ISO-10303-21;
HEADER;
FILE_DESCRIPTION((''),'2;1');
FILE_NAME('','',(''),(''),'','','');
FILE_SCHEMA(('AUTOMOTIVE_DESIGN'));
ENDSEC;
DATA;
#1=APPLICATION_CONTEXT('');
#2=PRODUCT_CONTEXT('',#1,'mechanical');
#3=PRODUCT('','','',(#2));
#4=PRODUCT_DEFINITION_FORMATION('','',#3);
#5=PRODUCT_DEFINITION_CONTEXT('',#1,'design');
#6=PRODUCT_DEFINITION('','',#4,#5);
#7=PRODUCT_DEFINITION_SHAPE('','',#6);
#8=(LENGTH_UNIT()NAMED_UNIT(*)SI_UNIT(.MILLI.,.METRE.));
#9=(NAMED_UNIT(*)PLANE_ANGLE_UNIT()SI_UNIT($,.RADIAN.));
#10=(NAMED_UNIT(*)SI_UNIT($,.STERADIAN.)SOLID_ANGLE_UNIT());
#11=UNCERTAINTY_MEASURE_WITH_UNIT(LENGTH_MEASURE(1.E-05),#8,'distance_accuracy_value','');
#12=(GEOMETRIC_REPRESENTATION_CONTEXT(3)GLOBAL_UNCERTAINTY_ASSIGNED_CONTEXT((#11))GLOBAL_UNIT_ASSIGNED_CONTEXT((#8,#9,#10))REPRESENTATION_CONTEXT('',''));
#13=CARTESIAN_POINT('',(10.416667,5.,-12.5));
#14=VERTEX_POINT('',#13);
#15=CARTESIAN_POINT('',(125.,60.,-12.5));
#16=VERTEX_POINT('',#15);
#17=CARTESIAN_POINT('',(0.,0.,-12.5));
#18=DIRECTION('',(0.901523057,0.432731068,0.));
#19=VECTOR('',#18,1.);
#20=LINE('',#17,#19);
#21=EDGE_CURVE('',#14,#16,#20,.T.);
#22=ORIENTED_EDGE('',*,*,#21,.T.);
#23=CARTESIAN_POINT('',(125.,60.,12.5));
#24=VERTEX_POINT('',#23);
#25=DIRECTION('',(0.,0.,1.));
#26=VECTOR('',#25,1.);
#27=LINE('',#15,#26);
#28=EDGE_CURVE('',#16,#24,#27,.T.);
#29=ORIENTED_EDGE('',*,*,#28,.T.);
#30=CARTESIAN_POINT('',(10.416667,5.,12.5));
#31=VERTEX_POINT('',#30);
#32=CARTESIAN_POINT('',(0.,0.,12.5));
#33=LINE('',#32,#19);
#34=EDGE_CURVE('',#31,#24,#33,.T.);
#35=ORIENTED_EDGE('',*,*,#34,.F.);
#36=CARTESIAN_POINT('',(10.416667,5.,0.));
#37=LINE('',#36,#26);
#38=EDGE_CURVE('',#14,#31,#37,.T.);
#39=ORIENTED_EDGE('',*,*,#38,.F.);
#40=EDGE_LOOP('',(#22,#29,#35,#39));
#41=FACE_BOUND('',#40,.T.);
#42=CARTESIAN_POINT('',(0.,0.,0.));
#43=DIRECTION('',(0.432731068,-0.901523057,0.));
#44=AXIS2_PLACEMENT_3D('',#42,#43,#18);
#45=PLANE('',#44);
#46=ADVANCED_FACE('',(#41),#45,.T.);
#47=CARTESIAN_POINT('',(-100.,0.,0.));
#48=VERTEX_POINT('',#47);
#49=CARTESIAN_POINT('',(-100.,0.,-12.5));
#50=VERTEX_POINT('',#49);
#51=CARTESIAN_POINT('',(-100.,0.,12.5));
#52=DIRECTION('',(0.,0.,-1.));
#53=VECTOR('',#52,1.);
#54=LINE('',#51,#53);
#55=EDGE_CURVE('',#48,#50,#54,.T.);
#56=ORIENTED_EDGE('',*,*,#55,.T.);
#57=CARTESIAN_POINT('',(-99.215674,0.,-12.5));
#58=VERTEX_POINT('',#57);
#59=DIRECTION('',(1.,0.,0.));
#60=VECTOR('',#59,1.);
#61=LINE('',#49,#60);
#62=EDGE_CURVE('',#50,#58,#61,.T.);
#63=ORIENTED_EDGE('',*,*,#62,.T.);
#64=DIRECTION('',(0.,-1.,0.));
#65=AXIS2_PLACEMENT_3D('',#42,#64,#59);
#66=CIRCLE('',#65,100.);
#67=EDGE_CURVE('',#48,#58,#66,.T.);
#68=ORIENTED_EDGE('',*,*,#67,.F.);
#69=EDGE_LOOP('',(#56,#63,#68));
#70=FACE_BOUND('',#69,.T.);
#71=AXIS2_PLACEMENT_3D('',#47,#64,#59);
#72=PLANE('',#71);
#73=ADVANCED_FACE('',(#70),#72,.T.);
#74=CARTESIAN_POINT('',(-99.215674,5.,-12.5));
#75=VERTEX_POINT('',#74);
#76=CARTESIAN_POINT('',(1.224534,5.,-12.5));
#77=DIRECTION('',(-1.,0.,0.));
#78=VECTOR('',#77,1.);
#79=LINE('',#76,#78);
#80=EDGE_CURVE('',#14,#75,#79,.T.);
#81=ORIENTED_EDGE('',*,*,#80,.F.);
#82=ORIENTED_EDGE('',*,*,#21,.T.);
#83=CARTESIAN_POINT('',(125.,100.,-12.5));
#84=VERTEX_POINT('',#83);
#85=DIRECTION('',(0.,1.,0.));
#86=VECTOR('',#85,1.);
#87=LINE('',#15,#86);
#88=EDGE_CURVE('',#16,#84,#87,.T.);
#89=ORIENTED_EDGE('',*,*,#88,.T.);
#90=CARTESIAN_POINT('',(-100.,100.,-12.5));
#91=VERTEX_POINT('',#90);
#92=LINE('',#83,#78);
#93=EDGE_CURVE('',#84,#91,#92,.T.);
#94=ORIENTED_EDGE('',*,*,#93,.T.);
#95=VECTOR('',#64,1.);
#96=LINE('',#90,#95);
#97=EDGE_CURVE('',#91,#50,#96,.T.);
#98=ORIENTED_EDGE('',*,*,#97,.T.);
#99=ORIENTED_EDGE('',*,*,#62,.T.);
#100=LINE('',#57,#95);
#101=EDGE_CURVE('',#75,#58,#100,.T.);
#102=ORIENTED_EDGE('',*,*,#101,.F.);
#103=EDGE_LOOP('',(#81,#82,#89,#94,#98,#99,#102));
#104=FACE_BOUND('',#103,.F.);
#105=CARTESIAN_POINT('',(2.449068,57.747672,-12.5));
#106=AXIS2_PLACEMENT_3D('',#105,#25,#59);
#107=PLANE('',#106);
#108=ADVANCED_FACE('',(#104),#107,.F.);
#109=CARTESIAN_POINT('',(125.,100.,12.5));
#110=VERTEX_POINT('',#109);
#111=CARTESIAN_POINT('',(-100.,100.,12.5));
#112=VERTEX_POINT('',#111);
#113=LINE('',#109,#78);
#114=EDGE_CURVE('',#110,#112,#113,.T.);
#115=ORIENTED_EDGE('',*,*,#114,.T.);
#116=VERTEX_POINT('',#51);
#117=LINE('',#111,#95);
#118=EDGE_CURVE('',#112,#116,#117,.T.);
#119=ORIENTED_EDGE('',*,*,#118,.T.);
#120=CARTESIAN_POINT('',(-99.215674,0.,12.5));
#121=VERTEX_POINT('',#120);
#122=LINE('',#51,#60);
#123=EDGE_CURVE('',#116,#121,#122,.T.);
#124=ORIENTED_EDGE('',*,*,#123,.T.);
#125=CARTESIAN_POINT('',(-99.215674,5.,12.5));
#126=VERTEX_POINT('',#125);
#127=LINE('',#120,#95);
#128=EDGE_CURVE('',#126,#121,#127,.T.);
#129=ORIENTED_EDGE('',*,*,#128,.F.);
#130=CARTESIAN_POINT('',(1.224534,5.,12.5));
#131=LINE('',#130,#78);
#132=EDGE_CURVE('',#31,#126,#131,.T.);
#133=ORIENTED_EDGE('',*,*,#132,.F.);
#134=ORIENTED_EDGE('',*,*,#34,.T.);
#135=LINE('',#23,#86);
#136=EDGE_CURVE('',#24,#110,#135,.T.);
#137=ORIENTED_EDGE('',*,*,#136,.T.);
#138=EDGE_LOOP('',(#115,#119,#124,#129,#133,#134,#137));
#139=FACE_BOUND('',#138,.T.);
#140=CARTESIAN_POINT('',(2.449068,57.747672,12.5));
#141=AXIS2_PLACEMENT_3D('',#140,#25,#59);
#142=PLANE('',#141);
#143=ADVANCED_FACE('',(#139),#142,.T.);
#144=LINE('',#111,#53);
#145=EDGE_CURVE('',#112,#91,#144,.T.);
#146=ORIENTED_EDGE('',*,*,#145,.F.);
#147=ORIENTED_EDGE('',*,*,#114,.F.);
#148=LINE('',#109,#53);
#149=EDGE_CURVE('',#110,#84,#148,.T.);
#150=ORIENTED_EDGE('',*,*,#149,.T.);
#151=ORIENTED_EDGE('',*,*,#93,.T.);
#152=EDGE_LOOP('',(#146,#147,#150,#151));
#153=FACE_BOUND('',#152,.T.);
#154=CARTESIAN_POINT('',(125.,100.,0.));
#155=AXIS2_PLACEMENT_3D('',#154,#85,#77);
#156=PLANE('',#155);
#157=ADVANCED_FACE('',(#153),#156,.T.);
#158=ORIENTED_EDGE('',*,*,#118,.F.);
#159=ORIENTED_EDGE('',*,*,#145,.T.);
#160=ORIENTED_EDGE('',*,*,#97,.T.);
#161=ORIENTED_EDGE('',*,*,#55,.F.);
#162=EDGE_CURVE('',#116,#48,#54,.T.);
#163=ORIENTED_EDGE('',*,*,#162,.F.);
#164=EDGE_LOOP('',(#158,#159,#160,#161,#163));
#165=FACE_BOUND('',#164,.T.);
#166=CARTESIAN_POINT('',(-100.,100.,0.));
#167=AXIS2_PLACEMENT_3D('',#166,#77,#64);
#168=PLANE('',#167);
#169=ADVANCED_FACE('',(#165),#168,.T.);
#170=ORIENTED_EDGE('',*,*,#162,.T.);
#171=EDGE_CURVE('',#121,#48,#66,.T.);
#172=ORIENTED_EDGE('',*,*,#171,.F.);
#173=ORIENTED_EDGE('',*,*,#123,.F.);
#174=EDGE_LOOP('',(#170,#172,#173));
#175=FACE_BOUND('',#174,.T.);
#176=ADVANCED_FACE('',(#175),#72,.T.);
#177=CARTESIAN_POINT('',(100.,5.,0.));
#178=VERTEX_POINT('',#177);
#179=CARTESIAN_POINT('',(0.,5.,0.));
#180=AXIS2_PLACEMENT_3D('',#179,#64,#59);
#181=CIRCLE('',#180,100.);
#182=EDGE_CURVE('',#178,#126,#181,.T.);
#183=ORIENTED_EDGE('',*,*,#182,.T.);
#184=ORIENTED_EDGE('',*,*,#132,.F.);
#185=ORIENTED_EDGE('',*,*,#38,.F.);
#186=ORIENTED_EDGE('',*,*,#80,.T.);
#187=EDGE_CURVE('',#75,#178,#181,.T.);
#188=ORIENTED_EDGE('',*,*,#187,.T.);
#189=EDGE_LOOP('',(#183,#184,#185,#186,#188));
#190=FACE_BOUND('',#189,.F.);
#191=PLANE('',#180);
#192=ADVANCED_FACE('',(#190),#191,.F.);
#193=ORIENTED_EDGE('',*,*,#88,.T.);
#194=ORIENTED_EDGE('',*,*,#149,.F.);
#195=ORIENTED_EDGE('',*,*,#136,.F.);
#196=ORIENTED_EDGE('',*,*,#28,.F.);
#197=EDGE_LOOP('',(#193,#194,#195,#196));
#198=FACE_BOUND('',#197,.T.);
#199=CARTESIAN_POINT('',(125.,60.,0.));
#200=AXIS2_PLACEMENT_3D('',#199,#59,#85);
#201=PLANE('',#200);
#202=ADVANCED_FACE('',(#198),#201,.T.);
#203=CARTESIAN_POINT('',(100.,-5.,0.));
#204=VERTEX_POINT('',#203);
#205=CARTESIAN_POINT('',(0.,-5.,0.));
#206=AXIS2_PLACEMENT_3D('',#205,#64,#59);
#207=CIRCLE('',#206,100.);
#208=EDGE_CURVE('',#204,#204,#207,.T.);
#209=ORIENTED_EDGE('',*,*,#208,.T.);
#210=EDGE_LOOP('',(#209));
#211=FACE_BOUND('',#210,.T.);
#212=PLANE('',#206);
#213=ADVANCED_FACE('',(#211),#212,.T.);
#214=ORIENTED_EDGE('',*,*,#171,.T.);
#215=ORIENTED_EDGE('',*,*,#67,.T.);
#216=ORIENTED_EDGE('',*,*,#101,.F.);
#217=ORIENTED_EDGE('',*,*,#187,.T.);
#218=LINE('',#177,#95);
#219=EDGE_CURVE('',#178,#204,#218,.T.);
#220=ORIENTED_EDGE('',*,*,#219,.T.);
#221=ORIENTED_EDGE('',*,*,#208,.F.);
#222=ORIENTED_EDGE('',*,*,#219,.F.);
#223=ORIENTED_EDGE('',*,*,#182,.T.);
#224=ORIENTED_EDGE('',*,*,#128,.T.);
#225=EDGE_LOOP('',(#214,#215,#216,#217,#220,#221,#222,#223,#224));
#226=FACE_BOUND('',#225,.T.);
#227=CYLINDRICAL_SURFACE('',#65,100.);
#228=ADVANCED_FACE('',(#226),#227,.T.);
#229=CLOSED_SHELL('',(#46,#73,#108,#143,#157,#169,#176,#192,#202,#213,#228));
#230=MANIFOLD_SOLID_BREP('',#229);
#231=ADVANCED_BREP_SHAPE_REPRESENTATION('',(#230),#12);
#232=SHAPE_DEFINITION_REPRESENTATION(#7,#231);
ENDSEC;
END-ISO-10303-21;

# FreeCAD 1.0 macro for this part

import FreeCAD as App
import Part
import Sketcher
from FreeCAD import Vector


def add_polygon(sketch, points):
    """Adds a closed chain of lines whose ends are joined by coincident constraints."""
    first, n = sketch.GeometryCount, len(points)
    for a, b in zip(points, points[1:] + points[:1]):
        sketch.addGeometry(Part.LineSegment(App.Vector(*a, 0), App.Vector(*b, 0)), False)
    for i in range(n):
        sketch.addConstraint(Sketcher.Constraint("Coincident", first + i, 2, first + (i + 1) % n, 1))

doc = App.newDocument("Part")
body = doc.addObject("PartDesign::Body", "Body")

sketch1 = body.newObject("Sketcher::SketchObject", "Sketch")
sketch1.AttachmentSupport = (doc.getObject("XZ_Plane"), [""])
sketch1.MapMode = "FlatFace"
sketch1.addGeometry(Part.Circle(Vector(0, 0, 0), Vector(0, 0, 1), 100), False)
sketch1.addConstraint([
    Sketcher.Constraint("Coincident", 0, 3, -1, 1),
    Sketcher.Constraint("Diameter", 0, 200.0),
])
pad1 = body.newObject("PartDesign::Pad", "Pad")
pad1.Profile = sketch1
pad1.Length = 10
pad1.Midplane = True

sketch2 = body.newObject("Sketcher::SketchObject", "Sketch001")
sketch2.AttachmentSupport = (doc.getObject("XY_Plane"), [""])
sketch2.MapMode = "FlatFace"
add_polygon(sketch2, [(-100, 0), (0, 0), (125, 60), (125, 100), (-100, 100)])
sketch2.addConstraint([
    Sketcher.Constraint("Horizontal", 0),
    Sketcher.Constraint("Vertical", 2),
    Sketcher.Constraint("Horizontal", 3),
    Sketcher.Constraint("Vertical", 4),
    Sketcher.Constraint("Coincident", 0, 2, -1, 1),
    Sketcher.Constraint("Equal", 0, 4),
    Sketcher.Constraint("DistanceX", 0, 1, 0, 2, 100.0),
    Sketcher.Constraint("DistanceX", 3, 2, 3, 1, 225.0),
    Sketcher.Constraint("DistanceY", 2, 1, 2, 2, 40.0),
])
pad2 = body.newObject("PartDesign::Pad", "Pad001")
pad2.Profile = sketch2
pad2.Length = 25
pad2.Midplane = True

doc.recompute()
